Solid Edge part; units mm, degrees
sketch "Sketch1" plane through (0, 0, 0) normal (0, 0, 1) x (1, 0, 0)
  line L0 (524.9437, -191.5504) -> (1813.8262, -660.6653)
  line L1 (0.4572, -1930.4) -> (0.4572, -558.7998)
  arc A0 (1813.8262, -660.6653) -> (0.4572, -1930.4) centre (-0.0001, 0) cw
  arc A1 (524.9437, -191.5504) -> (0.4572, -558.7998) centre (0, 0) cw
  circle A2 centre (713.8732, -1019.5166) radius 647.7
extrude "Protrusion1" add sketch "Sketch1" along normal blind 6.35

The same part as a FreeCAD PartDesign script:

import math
import FreeCAD as App
import Part
import Sketcher
Q = App.Units.Quantity

doc = App.newDocument("Part")
body = doc.addObject("PartDesign::Body", "Body")

sketch1 = doc.addObject("Sketcher::SketchObject", "Sketch")
body.addObject(sketch1)
sketch1.AttachmentSupport = (doc.XY_Plane, [""])
sketch1.MapMode = "FlatFace"
sketch1.addGeometry(Part.LineSegment(App.Vector(1813.8262, -660.6653, 0), App.Vector(524.9437, -191.5504, 0)), False)
sketch1.addGeometry(Part.ArcOfCircle(Part.Circle(App.Vector(0, 0, 0), App.Vector(0, 0, 1), 558.800003), math.radians(-89.953122), math.radians(-20.046876)), False)
sketch1.addGeometry(Part.LineSegment(App.Vector(0.4572, -558.7998, 0), App.Vector(0.4572, -1930.4, 0)), False)
sketch1.addGeometry(Part.ArcOfCircle(Part.Circle(App.Vector(-0.0001, 0, 0), App.Vector(0, 0, 1), 1930.400084), math.radians(-89.986427), math.radians(-20.013569)), False)
sketch1.addGeometry(Part.Circle(App.Vector(713.8732, -1019.5166, 0), App.Vector(0, 0, 1), 647.7), False)
sketch1.addConstraint(Sketcher.Constraint("Coincident", 0, 2, 1, 2))
sketch1.addConstraint(Sketcher.Constraint("Coincident", 1, 1, 2, 1))
sketch1.addConstraint(Sketcher.Constraint("Coincident", 2, 2, 3, 1))
sketch1.addConstraint(Sketcher.Constraint("Coincident", 3, 2, 0, 1))
sketch1.addConstraint(Sketcher.Constraint("Vertical", 2))
sketch1.addConstraint(Sketcher.Constraint("Coincident", 1, 3, -1, 1))
sketch1.addConstraint(Sketcher.Constraint("Coincident", 3, 3, -1, 1))
sketch1.addConstraint(Sketcher.Constraint("Diameter", 4, Q("51 in")))
sketch1.addConstraint(Sketcher.Constraint("Radius", 1, Q("22 in")))
sketch1.addConstraint(Sketcher.Constraint("Radius", 3, Q("76 in")))
sketch1.addConstraint(Sketcher.Constraint("Angle", 0, Q("160 deg")))
sketch1.addConstraint(Sketcher.Constraint("DistanceX", -1, 1, 2, 2, Q("0.018 in")))
sketch1.addConstraint(Sketcher.Constraint("DistanceY", 4, 3, 0, 2, Q("32.5971 in")))
sketch1.addConstraint(Sketcher.Constraint("DistanceX", -1, 1, 4, 3, 713.8732))
sketch1.addConstraint(Sketcher.Constraint("DistanceY", 4, 3, -1, 1, 1019.5166))
pad1 = doc.addObject("PartDesign::Pad", "Pad")
body.addObject(pad1)
pad1.Profile = sketch1
pad1.Length = Q("0.25 in")

doc.recompute()
